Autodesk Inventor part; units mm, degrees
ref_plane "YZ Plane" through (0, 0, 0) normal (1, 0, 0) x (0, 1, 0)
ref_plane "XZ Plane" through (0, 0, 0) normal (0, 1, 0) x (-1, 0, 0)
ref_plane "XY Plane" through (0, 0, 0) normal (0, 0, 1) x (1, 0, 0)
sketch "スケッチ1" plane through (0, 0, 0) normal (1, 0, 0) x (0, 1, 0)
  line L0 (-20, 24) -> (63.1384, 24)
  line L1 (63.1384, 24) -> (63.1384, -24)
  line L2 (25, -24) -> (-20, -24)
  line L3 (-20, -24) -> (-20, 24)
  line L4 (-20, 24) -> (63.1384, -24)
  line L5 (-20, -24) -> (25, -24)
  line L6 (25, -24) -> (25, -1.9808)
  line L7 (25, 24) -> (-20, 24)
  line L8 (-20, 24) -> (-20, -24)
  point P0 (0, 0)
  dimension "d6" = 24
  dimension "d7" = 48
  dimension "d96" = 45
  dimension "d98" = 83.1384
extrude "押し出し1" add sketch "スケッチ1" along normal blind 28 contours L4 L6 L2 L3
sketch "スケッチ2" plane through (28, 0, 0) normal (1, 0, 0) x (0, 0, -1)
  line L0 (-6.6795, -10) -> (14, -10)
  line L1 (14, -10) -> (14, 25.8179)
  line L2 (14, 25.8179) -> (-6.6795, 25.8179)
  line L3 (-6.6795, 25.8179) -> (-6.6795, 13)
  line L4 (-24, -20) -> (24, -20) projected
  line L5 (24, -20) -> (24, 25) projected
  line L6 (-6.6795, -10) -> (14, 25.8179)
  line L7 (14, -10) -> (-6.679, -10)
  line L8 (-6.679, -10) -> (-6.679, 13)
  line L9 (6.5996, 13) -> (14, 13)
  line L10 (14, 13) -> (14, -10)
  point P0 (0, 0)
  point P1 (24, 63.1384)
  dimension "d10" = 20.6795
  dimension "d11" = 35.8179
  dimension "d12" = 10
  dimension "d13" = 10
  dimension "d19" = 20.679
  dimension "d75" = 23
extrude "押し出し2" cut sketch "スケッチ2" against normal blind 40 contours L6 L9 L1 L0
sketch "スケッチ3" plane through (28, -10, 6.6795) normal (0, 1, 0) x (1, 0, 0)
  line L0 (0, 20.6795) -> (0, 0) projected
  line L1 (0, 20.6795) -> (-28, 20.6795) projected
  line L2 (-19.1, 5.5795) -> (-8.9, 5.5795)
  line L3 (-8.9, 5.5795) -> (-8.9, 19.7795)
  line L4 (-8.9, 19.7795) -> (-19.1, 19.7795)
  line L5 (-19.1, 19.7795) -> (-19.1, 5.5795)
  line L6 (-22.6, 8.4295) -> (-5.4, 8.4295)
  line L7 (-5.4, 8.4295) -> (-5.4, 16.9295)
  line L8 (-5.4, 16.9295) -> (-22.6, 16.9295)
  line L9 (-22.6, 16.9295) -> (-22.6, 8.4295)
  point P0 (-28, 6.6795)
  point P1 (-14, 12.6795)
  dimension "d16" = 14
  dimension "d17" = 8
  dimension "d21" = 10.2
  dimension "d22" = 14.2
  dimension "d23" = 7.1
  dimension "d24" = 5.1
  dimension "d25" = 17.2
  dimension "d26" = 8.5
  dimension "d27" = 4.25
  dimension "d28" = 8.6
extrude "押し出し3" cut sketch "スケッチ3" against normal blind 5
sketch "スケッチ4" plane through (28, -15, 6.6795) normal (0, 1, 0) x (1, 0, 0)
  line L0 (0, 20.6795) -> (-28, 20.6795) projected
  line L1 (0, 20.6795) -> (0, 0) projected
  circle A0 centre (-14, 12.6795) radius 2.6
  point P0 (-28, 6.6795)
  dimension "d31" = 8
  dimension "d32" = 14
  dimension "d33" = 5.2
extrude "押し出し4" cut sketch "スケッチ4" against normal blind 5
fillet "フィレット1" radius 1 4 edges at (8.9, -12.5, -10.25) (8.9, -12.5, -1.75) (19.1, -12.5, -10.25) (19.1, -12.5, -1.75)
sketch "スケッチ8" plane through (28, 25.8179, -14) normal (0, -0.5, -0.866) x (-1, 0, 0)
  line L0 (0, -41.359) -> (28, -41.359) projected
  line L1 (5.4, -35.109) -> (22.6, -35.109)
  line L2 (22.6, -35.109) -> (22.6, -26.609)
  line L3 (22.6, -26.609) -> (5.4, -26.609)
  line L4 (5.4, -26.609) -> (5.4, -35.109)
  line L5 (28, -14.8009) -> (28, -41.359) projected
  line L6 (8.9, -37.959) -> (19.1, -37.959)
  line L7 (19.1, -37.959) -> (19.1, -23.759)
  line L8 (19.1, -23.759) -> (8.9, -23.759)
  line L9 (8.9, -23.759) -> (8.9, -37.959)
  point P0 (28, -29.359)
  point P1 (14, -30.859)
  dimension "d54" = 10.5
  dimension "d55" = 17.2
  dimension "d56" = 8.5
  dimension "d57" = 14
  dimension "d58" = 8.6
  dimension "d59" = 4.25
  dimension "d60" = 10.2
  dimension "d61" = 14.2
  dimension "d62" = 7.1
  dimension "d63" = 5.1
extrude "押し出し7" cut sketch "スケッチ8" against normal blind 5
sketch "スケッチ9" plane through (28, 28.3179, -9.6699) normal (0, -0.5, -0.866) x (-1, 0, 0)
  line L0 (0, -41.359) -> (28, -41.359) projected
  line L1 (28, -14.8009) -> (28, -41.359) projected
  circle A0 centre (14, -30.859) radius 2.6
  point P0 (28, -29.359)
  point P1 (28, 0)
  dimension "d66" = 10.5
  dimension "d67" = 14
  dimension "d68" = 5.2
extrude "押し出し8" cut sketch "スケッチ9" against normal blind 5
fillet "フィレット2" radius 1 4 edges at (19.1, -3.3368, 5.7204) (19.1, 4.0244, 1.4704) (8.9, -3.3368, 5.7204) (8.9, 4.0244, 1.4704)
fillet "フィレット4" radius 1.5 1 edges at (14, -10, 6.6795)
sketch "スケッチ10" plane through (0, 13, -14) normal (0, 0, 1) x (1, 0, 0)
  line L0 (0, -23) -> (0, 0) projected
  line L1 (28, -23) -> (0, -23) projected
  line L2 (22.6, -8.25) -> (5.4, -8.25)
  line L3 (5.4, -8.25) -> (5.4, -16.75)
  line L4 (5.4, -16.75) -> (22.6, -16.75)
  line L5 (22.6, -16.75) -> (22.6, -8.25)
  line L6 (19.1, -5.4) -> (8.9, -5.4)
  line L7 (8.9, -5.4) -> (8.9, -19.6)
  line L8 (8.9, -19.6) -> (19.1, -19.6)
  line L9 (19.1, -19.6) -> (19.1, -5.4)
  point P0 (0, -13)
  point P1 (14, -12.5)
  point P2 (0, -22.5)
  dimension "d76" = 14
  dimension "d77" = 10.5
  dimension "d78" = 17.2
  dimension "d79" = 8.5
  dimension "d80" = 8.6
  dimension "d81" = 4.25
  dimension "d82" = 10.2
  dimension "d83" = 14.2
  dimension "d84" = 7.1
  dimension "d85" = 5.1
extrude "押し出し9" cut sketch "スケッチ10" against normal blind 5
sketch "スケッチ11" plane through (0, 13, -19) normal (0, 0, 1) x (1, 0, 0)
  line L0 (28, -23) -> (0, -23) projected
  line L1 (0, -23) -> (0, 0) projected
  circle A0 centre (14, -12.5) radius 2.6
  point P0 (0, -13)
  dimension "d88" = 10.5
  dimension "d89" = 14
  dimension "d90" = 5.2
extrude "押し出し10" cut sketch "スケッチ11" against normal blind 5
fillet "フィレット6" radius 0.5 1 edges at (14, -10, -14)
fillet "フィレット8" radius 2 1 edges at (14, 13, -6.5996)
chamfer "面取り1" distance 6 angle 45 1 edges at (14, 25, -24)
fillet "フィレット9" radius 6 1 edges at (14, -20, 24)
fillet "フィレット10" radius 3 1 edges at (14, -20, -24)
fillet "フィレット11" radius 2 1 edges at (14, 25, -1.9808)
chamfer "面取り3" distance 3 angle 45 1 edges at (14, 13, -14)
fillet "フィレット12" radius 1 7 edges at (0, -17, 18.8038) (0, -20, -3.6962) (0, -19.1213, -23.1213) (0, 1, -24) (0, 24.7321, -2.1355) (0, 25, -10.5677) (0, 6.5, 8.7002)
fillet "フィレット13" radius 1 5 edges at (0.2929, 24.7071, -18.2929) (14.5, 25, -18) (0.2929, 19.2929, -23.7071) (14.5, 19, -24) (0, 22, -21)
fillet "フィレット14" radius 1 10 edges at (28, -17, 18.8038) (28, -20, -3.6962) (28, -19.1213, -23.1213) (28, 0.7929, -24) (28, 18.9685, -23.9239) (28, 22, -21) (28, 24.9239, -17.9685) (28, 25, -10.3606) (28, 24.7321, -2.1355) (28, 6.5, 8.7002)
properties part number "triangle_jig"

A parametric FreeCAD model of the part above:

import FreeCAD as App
import Part
import Sketcher
from FreeCAD import Vector
Q = App.Units.Quantity


def edges_at(feature, points):
    """Names of the edges that pass closest to the given points."""
    edges = feature.Shape.Edges
    near = lambda p: min(range(len(edges)), key=lambda i: edges[i].distToShape(Part.Vertex(*p))[0])
    return sorted({f"Edge{near(p) + 1}" for p in points})


def add_polygon(sketch, points):
    """Adds a closed chain of lines whose ends are joined by coincident constraints."""
    first, n = sketch.GeometryCount, len(points)
    for a, b in zip(points, points[1:] + points[:1]):
        sketch.addGeometry(Part.LineSegment(App.Vector(*a, 0), App.Vector(*b, 0)), False)
    for i in range(n):
        sketch.addConstraint(Sketcher.Constraint("Coincident", first + i, 2, first + (i + 1) % n, 1))

doc = App.newDocument("Part")
body = doc.addObject("PartDesign::Body", "Body")

# Sketch on YZ plane
sketch1 = body.newObject("Sketcher::SketchObject", "Sketch")
sketch1.AttachmentSupport = (doc.getObject("YZ_Plane"), [""])
sketch1.MapMode = "FlatFace"
add_polygon(sketch1, [(25, -2), (-20, 24), (-20, -24), (25, -24)])  # lines 0-3
sketch1.addConstraint(Sketcher.Constraint("Vertical", 1))
sketch1.addConstraint(Sketcher.Constraint("Horizontal", 2))
sketch1.addConstraint(Sketcher.Constraint("Vertical", 3))
sketch1.addConstraint(Sketcher.Constraint("DistanceX", 2, 1, 2, 2, Q("45 mm")))
sketch1.addConstraint(Sketcher.Constraint("DistanceY", 1, 2, 1, 1, Q("48 mm")))
sketch1.addConstraint(Sketcher.Constraint("DistanceY", -1, 1, 0, 2, Q("24 mm")))
sketch1.addConstraint(Sketcher.Constraint("Angle", 0, Q("150 deg")))
sketch1.addConstraint(Sketcher.Constraint("DistanceX", 0, 2, -1, 1, Q("20 mm")))
pad1 = body.newObject("PartDesign::Pad", "Pad")
pad1.Profile = sketch1
pad1.Length = 28

# Sketch on YZ plane
sketch2 = body.newObject("Sketcher::SketchObject", "Sketch001")
sketch2.AttachmentSupport = (doc.getObject("YZ_Plane"), [""])
sketch2.MapMode = "FlatFace"
sketch2.AttachmentOffset = App.Placement(Vector(0, 0, 28), App.Rotation())
add_polygon(sketch2, [(13, -7), (-10, 7), (-10, -14), (13, -14)])  # lines 0-3
sketch2.addConstraint(Sketcher.Constraint("Vertical", 1))
sketch2.addConstraint(Sketcher.Constraint("Horizontal", 2))
sketch2.addConstraint(Sketcher.Constraint("Vertical", 3))
sketch2.addConstraint(Sketcher.Constraint("DistanceX", 2, 1, 2, 2, Q("23 mm")))
sketch2.addConstraint(Sketcher.Constraint("DistanceX", 0, 2, -1, 1, Q("10 mm")))
sketch2.addConstraint(Sketcher.Constraint("Angle", 0, Q("150 deg")))
sketch2.addConstraint(Sketcher.Constraint("DistanceY", 1, 2, 1, 1, Q("20.6795 mm")))
sketch2.addConstraint(Sketcher.Constraint("DistanceY", 1, 2, -1, 1, Q("14 mm")))
pocket1 = body.newObject("PartDesign::Pocket", "Pocket")
pocket1.Profile = sketch2
pocket1.Length = 40

# Sketch on XZ plane
sketch3 = body.newObject("Sketcher::SketchObject", "Sketch002")
sketch3.AttachmentSupport = (doc.getObject("XZ_Plane"), [""])
sketch3.MapMode = "FlatFace"
sketch3.AttachmentOffset = App.Placement(Vector(0, 0, 10), App.Rotation())
add_polygon(sketch3, [(8.9, -1.8), (8.9, 1.1), (19.1, 1.1), (19.1, -1.8), (22.6, -1.8), (22.6, -10.2), (19.1, -10.2), (19.1, -13.1), (8.9, -13.1), (8.9, -10.2), (5.4, -10.2), (5.4, -1.8)])  # lines 0-11
sketch3.addConstraint(Sketcher.Constraint("Vertical", 0))
sketch3.addConstraint(Sketcher.Constraint("Horizontal", 1))
sketch3.addConstraint(Sketcher.Constraint("Vertical", 2))
sketch3.addConstraint(Sketcher.Constraint("Horizontal", 3))
sketch3.addConstraint(Sketcher.Constraint("Vertical", 4))
sketch3.addConstraint(Sketcher.Constraint("Horizontal", 5))
sketch3.addConstraint(Sketcher.Constraint("Vertical", 6))
sketch3.addConstraint(Sketcher.Constraint("Horizontal", 7))
sketch3.addConstraint(Sketcher.Constraint("Vertical", 8))
sketch3.addConstraint(Sketcher.Constraint("Horizontal", 9))
sketch3.addConstraint(Sketcher.Constraint("Vertical", 10))
sketch3.addConstraint(Sketcher.Constraint("Horizontal", 11))
sketch3.addConstraint(Sketcher.Constraint("Horizontal", 5, 2, 8, 2))
sketch3.addConstraint(Sketcher.Constraint("Horizontal", 3, 2, 10, 2))
sketch3.addConstraint(Sketcher.Constraint("Vertical", 2, 2, 5, 2))
sketch3.addConstraint(Sketcher.Constraint("Vertical", 0, 2, 7, 2))
sketch3.addConstraint(Sketcher.Constraint("Equal", 5, 9))
sketch3.addConstraint(Sketcher.Constraint("Equal", 2, 6))
sketch3.addConstraint(Sketcher.Constraint("DistanceX", 1, 1, 1, 2, Q("10.2 mm")))
sketch3.addConstraint(Sketcher.Constraint("DistanceY", 4, 2, 4, 1, Q("8.5 mm")))
sketch3.addConstraint(Sketcher.Constraint("DistanceY", 6, 2, 1, 2, Q("14.2 mm")))
sketch3.addConstraint(Sketcher.Constraint("DistanceX", 3, 1, 3, 2, Q("3.5 mm")))
sketch3.addConstraint(Sketcher.Constraint("DistanceX", -1, 1, 0, 2, Q("8.9 mm")))
sketch3.addConstraint(Sketcher.Constraint("DistanceY", -1, 1, 0, 2, Q("1.1 mm")))
pocket2 = body.newObject("PartDesign::Pocket", "Pocket001")
pocket2.Profile = sketch3
pocket2.Length = 5
pocket2.Reversed = True

# Sketch on XZ plane
sketch4 = body.newObject("Sketcher::SketchObject", "Sketch003")
sketch4.AttachmentSupport = (doc.getObject("XZ_Plane"), [""])
sketch4.MapMode = "FlatFace"
sketch4.AttachmentOffset = App.Placement(Vector(0, 0, 15), App.Rotation())
sketch4.addGeometry(Part.Circle(Vector(14, -6, 0), Vector(0, 0, 1), 2.6), False)
sketch4.addConstraint(Sketcher.Constraint("Diameter", 0, Q("5.2 mm")))
sketch4.addConstraint(Sketcher.Constraint("DistanceX", -1, 1, 0, 3, Q("14 mm")))
sketch4.addConstraint(Sketcher.Constraint("DistanceY", 0, 3, -1, 1, Q("6 mm")))
pocket3 = body.newObject("PartDesign::Pocket", "Pocket002")
pocket3.Profile = sketch4
pocket3.Length = 5
pocket3.Reversed = True
doc.recompute()

fillet = body.newObject("PartDesign::Fillet", "Fillet")
fillet.Base = (pocket3, edges_at(pocket3, [
    (8.9, -12.5, -10.25),
    (8.9, -12.5, -1.75),
    (19.1, -12.5, -10.25),
    (19.1, -12.5, -1.75),
]))
fillet.Radius = 1

# Sketch on an angled plane
sketch5 = body.newObject("Sketcher::SketchObject", "Sketch004")
sketch5.Placement = App.Placement(Vector(28, 25.8179, -14), App.Rotation(Vector(-1, 0, 0), Vector(0, 0.866025404, -0.5), Vector(0, -0.5, -0.866025404), "ZXY"))
add_polygon(sketch5, [(5.4, -26.6), (5.4, -35.1), (8.9, -35.1), (8.9, -38), (19.1, -38), (19.1, -35.1), (22.6, -35.1), (22.6, -26.6), (19.1, -26.6), (19.1, -23.8), (8.9, -23.8), (8.9, -26.6)])  # lines 0-11
sketch5.addConstraint(Sketcher.Constraint("Vertical", 0))
sketch5.addConstraint(Sketcher.Constraint("Horizontal", 1))
sketch5.addConstraint(Sketcher.Constraint("Vertical", 2))
sketch5.addConstraint(Sketcher.Constraint("Horizontal", 3))
sketch5.addConstraint(Sketcher.Constraint("Vertical", 4))
sketch5.addConstraint(Sketcher.Constraint("Horizontal", 5))
sketch5.addConstraint(Sketcher.Constraint("Vertical", 6))
sketch5.addConstraint(Sketcher.Constraint("Horizontal", 7))
sketch5.addConstraint(Sketcher.Constraint("Vertical", 8))
sketch5.addConstraint(Sketcher.Constraint("Horizontal", 9))
sketch5.addConstraint(Sketcher.Constraint("Vertical", 10))
sketch5.addConstraint(Sketcher.Constraint("Horizontal", 11))
sketch5.addConstraint(Sketcher.Constraint("Horizontal", 1, 2, 4, 2))
sketch5.addConstraint(Sketcher.Constraint("Horizontal", 7, 2, 10, 2))
sketch5.addConstraint(Sketcher.Constraint("Vertical", 4, 2, 7, 2))
sketch5.addConstraint(Sketcher.Constraint("Vertical", 2, 2, 9, 2))
sketch5.addConstraint(Sketcher.Constraint("Equal", 1, 5))
sketch5.addConstraint(Sketcher.Constraint("Equal", 4, 8))
sketch5.addConstraint(Sketcher.Constraint("DistanceX", 3, 1, 3, 2, Q("10.2 mm")))
sketch5.addConstraint(Sketcher.Constraint("DistanceY", 0, 2, 0, 1, Q("8.5 mm")))
sketch5.addConstraint(Sketcher.Constraint("DistanceX", 0, 2, 5, 2, Q("17.2 mm")))
sketch5.addConstraint(Sketcher.Constraint("DistanceY", 3, 2, 8, 2, Q("14.2 mm")))
sketch5.addConstraint(Sketcher.Constraint("DistanceX", -1, 1, 0, 2, Q("5.4 mm")))
sketch5.addConstraint(Sketcher.Constraint("DistanceY", 0, 2, -1, 1, Q("35.109 mm")))
pocket4 = body.newObject("PartDesign::Pocket", "Pocket003")
pocket4.Profile = sketch5
pocket4.Length = 5

# Sketch on an angled plane
sketch6 = body.newObject("Sketcher::SketchObject", "Sketch005")
sketch6.Placement = App.Placement(Vector(28, 28.3179, -9.6699), App.Rotation(Vector(-1, 0, 0), Vector(0, 0.866025404, -0.5), Vector(0, -0.5, -0.866025404), "ZXY"))
sketch6.addGeometry(Part.Circle(Vector(14, -30.9, 0), Vector(0, 0, 1), 2.6), False)
sketch6.addConstraint(Sketcher.Constraint("Diameter", 0, Q("5.2 mm")))
sketch6.addConstraint(Sketcher.Constraint("DistanceX", -1, 1, 0, 3, Q("14 mm")))
sketch6.addConstraint(Sketcher.Constraint("DistanceY", 0, 3, -1, 1, Q("30.859 mm")))
pocket5 = body.newObject("PartDesign::Pocket", "Pocket004")
pocket5.Profile = sketch6
pocket5.Length = 5
doc.recompute()

fillet2 = body.newObject("PartDesign::Fillet", "Fillet001")
fillet2.Base = (pocket5, edges_at(pocket5, [
    (19.1, -3.337, 5.72),
    (19.1, 4.024, 1.47),
    (8.9, -3.337, 5.72),
    (8.9, 4.024, 1.47),
]))
fillet2.Radius = 1
doc.recompute()

fillet3 = body.newObject("PartDesign::Fillet", "Fillet002")
fillet3.Base = (fillet2, edges_at(fillet2, [(14, -10, 6.679)]))
fillet3.Radius = 1.5

# Sketch on XY plane
sketch7 = body.newObject("Sketcher::SketchObject", "Sketch006")
sketch7.AttachmentSupport = (doc.getObject("XY_Plane"), [""])
sketch7.MapMode = "FlatFace"
sketch7.AttachmentOffset = App.Placement(Vector(0, 0, -14), App.Rotation())
add_polygon(sketch7, [(22.6, -3.8), (22.6, 4.8), (19.1, 4.8), (19.1, 7.6), (8.9, 7.6), (8.9, 4.8), (5.4, 4.8), (5.4, -3.8), (8.9, -3.8), (8.9, -6.6), (19.1, -6.6), (19.1, -3.8)])  # lines 0-11
sketch7.addConstraint(Sketcher.Constraint("Vertical", 0))
sketch7.addConstraint(Sketcher.Constraint("Horizontal", 1))
sketch7.addConstraint(Sketcher.Constraint("Vertical", 2))
sketch7.addConstraint(Sketcher.Constraint("Horizontal", 3))
sketch7.addConstraint(Sketcher.Constraint("Vertical", 4))
sketch7.addConstraint(Sketcher.Constraint("Horizontal", 5))
sketch7.addConstraint(Sketcher.Constraint("Vertical", 6))
sketch7.addConstraint(Sketcher.Constraint("Horizontal", 7))
sketch7.addConstraint(Sketcher.Constraint("Vertical", 8))
sketch7.addConstraint(Sketcher.Constraint("Horizontal", 9))
sketch7.addConstraint(Sketcher.Constraint("Vertical", 10))
sketch7.addConstraint(Sketcher.Constraint("Horizontal", 11))
sketch7.addConstraint(Sketcher.Constraint("Horizontal", 1, 2, 4, 2))
sketch7.addConstraint(Sketcher.Constraint("Horizontal", 7, 2, 10, 2))
sketch7.addConstraint(Sketcher.Constraint("Vertical", 4, 2, 7, 2))
sketch7.addConstraint(Sketcher.Constraint("Vertical", 2, 2, 9, 2))
sketch7.addConstraint(Sketcher.Constraint("Equal", 1, 5))
sketch7.addConstraint(Sketcher.Constraint("Equal", 4, 8))
sketch7.addConstraint(Sketcher.Constraint("DistanceX", 3, 2, 3, 1, Q("10.2 mm")))
sketch7.addConstraint(Sketcher.Constraint("DistanceY", 0, 1, 0, 2, Q("8.5 mm")))
sketch7.addConstraint(Sketcher.Constraint("DistanceX", 5, 2, 0, 2, Q("17.2 mm")))
sketch7.addConstraint(Sketcher.Constraint("DistanceY", 8, 2, 3, 2, Q("14.2 mm")))
sketch7.addConstraint(Sketcher.Constraint("DistanceX", -1, 1, 0, 2, Q("22.6 mm")))
sketch7.addConstraint(Sketcher.Constraint("DistanceY", -1, 1, 2, 2, Q("7.6 mm")))
pocket6 = body.newObject("PartDesign::Pocket", "Pocket005")
pocket6.Profile = sketch7
pocket6.Length = 5

# Sketch on XY plane
sketch8 = body.newObject("Sketcher::SketchObject", "Sketch007")
sketch8.AttachmentSupport = (doc.getObject("XY_Plane"), [""])
sketch8.MapMode = "FlatFace"
sketch8.AttachmentOffset = App.Placement(Vector(0, 0, -19), App.Rotation())
sketch8.addGeometry(Part.Circle(Vector(14, 0.5, 0), Vector(0, 0, 1), 2.6), False)
sketch8.addConstraint(Sketcher.Constraint("Diameter", 0, Q("5.2 mm")))
sketch8.addConstraint(Sketcher.Constraint("DistanceX", -1, 1, 0, 3, Q("14 mm")))
sketch8.addConstraint(Sketcher.Constraint("DistanceY", -1, 1, 0, 3, Q("0.5 mm")))
pocket7 = body.newObject("PartDesign::Pocket", "Pocket006")
pocket7.Profile = sketch8
pocket7.Length = 5
doc.recompute()

fillet4 = body.newObject("PartDesign::Fillet", "Fillet003")
fillet4.Base = (pocket7, edges_at(pocket7, [(14, -10, -14)]))
fillet4.Radius = 0.5
doc.recompute()

fillet5 = body.newObject("PartDesign::Fillet", "Fillet004")
fillet5.Base = (fillet4, edges_at(fillet4, [(14, 13, -6.6)]))
fillet5.Radius = 2
doc.recompute()

chamfer = body.newObject("PartDesign::Chamfer", "Chamfer")
chamfer.Base = (fillet5, edges_at(fillet5, [(14, 25, -24)]))
chamfer.Size = 6
doc.recompute()

fillet6 = body.newObject("PartDesign::Fillet", "Fillet005")
fillet6.Base = (chamfer, edges_at(chamfer, [(14, -20, 24)]))
fillet6.Radius = 6
doc.recompute()

fillet7 = body.newObject("PartDesign::Fillet", "Fillet006")
fillet7.Base = (fillet6, edges_at(fillet6, [(14, -20, -24)]))
fillet7.Radius = 3
doc.recompute()

fillet8 = body.newObject("PartDesign::Fillet", "Fillet007")
fillet8.Base = (fillet7, edges_at(fillet7, [(14, 25, -1.981)]))
fillet8.Radius = 2
doc.recompute()

chamfer2 = body.newObject("PartDesign::Chamfer", "Chamfer001")
chamfer2.Base = (fillet8, edges_at(fillet8, [(14, 13, -14)]))
chamfer2.Size = 3
doc.recompute()

fillet9 = body.newObject("PartDesign::Fillet", "Fillet008")
fillet9.Base = (chamfer2, edges_at(chamfer2, [
    (0, -17, 18.804),
    (0, -20, -3.696),
    (0, -19.121, -23.121),
    (0, 1, -24),
    (0, 24.732, -2.135),
    (0, 25, -10.568),
    (0, 6.5, 8.7),
]))
fillet9.Radius = 1
doc.recompute()

fillet10 = body.newObject("PartDesign::Fillet", "Fillet009")
fillet10.Base = (fillet9, edges_at(fillet9, [
    (0.293, 24.707, -18.293),
    (14.5, 25, -18),
    (0.293, 19.293, -23.707),
    (14.5, 19, -24),
    (0, 22, -21),
]))
fillet10.Radius = 1
doc.recompute()

fillet11 = body.newObject("PartDesign::Fillet", "Fillet010")
fillet11.Base = (fillet10, edges_at(fillet10, [
    (28, -17, 18.804),
    (28, -20, -3.696),
    (28, -19.121, -23.121),
    (28, 0.793, -24),
    (28, 18.968, -23.924),
    (28, 22, -21),
    (28, 24.924, -17.968),
    (28, 25, -10.361),
    (28, 24.732, -2.135),
    (28, 6.5, 8.7),
]))
fillet11.Radius = 1

doc.recompute()
